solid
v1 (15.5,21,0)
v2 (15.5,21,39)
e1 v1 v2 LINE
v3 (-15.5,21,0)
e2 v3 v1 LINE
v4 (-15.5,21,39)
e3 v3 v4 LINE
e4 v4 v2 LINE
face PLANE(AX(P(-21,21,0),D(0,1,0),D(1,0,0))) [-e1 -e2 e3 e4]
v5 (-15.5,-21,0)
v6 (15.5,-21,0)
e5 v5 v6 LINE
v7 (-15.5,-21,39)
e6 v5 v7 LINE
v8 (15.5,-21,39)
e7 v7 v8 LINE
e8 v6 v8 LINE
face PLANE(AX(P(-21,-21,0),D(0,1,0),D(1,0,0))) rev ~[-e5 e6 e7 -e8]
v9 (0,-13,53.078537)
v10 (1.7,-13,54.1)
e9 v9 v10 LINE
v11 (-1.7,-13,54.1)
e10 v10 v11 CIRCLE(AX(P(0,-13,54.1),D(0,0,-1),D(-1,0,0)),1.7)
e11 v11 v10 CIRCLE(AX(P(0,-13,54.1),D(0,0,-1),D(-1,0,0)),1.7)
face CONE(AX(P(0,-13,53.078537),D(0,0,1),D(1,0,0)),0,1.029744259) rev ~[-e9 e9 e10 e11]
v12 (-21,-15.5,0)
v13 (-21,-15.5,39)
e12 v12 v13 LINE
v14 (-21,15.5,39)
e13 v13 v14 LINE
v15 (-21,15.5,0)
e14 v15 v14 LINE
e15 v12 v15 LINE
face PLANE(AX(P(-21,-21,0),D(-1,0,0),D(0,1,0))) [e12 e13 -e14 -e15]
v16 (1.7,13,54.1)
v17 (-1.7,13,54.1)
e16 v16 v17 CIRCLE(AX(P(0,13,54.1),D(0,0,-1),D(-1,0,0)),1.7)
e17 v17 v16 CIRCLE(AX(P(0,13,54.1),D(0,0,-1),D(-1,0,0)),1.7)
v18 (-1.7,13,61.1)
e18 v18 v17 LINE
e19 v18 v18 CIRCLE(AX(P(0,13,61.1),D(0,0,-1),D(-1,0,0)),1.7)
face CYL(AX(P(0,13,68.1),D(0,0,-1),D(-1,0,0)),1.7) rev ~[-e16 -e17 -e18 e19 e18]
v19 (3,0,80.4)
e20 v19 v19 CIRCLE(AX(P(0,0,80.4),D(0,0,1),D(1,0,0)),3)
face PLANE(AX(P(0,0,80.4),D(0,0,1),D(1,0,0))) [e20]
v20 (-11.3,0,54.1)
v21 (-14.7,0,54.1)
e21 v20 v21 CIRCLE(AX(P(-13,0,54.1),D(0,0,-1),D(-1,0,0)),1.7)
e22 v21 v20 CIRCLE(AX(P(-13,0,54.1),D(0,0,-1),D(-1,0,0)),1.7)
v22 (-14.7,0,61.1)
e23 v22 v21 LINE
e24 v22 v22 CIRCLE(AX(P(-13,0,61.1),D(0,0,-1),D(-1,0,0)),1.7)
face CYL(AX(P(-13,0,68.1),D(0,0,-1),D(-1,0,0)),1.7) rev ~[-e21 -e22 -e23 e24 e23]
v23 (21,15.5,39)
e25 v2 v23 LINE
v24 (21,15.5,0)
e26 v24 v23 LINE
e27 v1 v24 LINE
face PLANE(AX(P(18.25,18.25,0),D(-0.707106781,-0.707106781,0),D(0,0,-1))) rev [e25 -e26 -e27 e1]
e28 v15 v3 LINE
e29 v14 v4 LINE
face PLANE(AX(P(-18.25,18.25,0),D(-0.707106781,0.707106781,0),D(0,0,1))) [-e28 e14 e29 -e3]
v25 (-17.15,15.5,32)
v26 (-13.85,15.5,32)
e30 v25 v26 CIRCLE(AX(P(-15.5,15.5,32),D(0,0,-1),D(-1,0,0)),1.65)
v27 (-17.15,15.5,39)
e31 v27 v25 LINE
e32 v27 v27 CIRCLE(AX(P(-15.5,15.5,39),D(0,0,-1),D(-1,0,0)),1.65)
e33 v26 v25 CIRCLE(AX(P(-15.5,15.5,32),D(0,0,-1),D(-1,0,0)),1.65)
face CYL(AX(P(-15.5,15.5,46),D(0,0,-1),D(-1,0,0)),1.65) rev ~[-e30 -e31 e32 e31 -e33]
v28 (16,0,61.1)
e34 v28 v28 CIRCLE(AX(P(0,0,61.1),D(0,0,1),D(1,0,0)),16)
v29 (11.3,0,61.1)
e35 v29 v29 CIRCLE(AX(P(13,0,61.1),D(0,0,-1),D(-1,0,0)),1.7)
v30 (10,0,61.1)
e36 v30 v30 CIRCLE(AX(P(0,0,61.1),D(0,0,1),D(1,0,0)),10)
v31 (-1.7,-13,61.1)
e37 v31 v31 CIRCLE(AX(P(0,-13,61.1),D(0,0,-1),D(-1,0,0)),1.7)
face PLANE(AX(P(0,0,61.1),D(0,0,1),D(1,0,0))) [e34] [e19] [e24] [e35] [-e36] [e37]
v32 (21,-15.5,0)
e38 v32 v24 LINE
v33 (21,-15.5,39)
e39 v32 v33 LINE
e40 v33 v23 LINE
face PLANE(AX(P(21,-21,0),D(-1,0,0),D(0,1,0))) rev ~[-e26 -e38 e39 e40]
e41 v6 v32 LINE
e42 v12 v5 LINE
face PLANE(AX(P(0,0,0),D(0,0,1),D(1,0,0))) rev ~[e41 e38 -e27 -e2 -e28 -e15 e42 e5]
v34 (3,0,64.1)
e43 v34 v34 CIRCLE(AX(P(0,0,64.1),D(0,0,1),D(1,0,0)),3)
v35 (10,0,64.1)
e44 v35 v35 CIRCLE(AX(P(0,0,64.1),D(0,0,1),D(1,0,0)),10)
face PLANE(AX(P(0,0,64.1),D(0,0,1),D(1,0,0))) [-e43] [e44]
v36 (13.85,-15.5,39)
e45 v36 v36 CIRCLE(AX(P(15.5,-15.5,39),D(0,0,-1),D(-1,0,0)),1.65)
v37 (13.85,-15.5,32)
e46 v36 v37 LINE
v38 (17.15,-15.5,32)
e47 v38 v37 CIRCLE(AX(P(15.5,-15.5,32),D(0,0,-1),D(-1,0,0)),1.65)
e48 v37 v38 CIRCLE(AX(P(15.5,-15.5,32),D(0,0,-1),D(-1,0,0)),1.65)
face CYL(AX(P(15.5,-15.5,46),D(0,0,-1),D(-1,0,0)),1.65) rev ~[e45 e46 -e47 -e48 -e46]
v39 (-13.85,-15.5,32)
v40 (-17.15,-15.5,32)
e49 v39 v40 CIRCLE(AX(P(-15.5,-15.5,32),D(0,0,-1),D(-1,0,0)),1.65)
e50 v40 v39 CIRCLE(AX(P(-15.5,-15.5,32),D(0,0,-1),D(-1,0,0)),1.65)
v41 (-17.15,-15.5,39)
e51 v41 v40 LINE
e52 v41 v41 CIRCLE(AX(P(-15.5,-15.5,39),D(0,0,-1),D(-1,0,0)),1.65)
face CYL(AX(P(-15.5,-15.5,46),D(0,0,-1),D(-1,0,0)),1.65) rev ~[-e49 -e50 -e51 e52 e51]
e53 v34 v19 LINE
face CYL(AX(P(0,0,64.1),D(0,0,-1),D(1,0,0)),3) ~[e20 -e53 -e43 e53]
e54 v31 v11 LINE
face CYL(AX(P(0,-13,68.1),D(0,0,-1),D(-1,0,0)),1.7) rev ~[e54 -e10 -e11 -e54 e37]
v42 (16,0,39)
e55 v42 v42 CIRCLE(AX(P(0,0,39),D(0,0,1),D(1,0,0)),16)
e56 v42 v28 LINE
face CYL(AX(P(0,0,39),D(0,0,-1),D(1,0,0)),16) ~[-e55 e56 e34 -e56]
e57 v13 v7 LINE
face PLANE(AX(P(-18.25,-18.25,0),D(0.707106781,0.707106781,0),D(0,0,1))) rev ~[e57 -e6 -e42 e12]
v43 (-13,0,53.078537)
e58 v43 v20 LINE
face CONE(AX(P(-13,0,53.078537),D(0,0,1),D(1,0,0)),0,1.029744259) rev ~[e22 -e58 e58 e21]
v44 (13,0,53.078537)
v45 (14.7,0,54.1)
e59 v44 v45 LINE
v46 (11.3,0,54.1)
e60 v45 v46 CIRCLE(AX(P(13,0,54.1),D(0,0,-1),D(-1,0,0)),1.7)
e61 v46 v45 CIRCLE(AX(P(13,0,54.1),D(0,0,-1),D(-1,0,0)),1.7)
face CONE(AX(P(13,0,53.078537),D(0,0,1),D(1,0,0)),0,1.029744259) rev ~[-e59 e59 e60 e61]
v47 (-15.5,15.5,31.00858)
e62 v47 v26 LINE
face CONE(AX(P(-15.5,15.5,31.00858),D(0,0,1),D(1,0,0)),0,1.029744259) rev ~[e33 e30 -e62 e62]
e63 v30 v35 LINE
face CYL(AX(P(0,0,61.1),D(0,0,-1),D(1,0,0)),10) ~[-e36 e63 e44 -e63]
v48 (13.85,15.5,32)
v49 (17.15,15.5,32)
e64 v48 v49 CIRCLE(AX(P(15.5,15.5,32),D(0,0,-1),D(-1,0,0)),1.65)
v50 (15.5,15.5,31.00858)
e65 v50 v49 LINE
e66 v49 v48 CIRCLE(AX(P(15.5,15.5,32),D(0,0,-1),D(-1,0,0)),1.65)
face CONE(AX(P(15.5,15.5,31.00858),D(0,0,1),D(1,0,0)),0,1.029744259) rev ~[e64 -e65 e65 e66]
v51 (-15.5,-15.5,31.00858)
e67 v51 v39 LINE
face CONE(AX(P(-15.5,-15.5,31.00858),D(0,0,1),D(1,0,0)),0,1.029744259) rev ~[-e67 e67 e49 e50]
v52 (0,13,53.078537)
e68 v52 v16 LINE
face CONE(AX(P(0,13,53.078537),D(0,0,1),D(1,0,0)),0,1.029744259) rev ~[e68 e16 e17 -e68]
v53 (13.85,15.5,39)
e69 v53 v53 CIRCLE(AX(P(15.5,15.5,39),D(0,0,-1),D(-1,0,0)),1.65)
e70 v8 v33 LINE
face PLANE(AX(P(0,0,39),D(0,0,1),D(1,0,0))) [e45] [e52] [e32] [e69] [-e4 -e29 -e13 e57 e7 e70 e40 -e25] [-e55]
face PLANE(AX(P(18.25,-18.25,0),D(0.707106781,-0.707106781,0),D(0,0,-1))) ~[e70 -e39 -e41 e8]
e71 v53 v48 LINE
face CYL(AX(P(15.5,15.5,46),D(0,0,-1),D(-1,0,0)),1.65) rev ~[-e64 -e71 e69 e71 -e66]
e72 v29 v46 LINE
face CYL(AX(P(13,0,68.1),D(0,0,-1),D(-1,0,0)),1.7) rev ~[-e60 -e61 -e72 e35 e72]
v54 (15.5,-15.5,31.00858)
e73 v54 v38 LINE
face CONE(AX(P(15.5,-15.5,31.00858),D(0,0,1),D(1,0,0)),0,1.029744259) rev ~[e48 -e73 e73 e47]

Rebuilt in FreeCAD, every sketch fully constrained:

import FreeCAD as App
import Part
import Sketcher


def edges_at(feature, points):
    """Names of the edges that pass closest to the given points."""
    edges = feature.Shape.Edges
    near = lambda p: min(range(len(edges)), key=lambda i: edges[i].distToShape(Part.Vertex(*p))[0])
    return sorted({f"Edge{near(p) + 1}" for p in points})

doc = App.newDocument("Part")
body = doc.addObject("PartDesign::Body", "Body")

# Sketch on XY plane
sketch1 = doc.addObject("Sketcher::SketchObject", "Sketch")
body.addObject(sketch1)
sketch1.AttachmentSupport = (doc.XY_Plane, [""])
sketch1.MapMode = "FlatFace"
sketch1.addGeometry(Part.LineSegment(App.Vector(-21, 21, 0), App.Vector(-21, -21, 0)), False)
sketch1.addGeometry(Part.LineSegment(App.Vector(-21, -21, 0), App.Vector(21, -21, 0)), False)
sketch1.addGeometry(Part.LineSegment(App.Vector(21, -21, 0), App.Vector(21, 21, 0)), False)
sketch1.addGeometry(Part.LineSegment(App.Vector(21, 21, 0), App.Vector(-21, 21, 0)), False)
sketch1.addConstraint(Sketcher.Constraint("Coincident", 0, 2, 1, 1))
sketch1.addConstraint(Sketcher.Constraint("Coincident", 1, 2, 2, 1))
sketch1.addConstraint(Sketcher.Constraint("Coincident", 2, 2, 3, 1))
sketch1.addConstraint(Sketcher.Constraint("Coincident", 3, 2, 0, 1))
sketch1.addConstraint(Sketcher.Constraint("Vertical", 0))
sketch1.addConstraint(Sketcher.Constraint("Horizontal", 1))
sketch1.addConstraint(Sketcher.Constraint("Vertical", 2))
sketch1.addConstraint(Sketcher.Constraint("Horizontal", 3))
sketch1.addConstraint(Sketcher.Constraint("Symmetric", 0, 2, 2, 2, -1, 1))
sketch1.addConstraint(Sketcher.Constraint("Equal", 3, 0))
sketch1.addConstraint(Sketcher.Constraint("DistanceX", 1, 1, 1, 2, 42.0))
pad1 = doc.addObject("PartDesign::Pad", "Pad")
body.addObject(pad1)
pad1.Profile = sketch1
pad1.Length = 39

# Sketch on XY plane
sketch2 = doc.addObject("Sketcher::SketchObject", "Sketch001")
body.addObject(sketch2)
sketch2.AttachmentSupport = (doc.XY_Plane, [""])
sketch2.MapMode = "FlatFace"
sketch2.AttachmentOffset = App.Placement(App.Vector(0, 0, 39), App.Rotation())
sketch2.addGeometry(Part.Circle(App.Vector(0, 0, 0), App.Vector(0, 0, 1), 16), False)
sketch2.addConstraint(Sketcher.Constraint("Coincident", 0, 3, -1, 1))
sketch2.addConstraint(Sketcher.Constraint("Diameter", 0, 32.0))
pad2 = doc.addObject("PartDesign::Pad", "Pad001")
body.addObject(pad2)
pad2.Profile = sketch2
pad2.Length = 22.1

# Sketch on XY plane
sketch3 = doc.addObject("Sketcher::SketchObject", "Sketch002")
body.addObject(sketch3)
sketch3.AttachmentSupport = (doc.XY_Plane, [""])
sketch3.MapMode = "FlatFace"
sketch3.AttachmentOffset = App.Placement(App.Vector(0, 0, 61.1), App.Rotation())
sketch3.addGeometry(Part.Circle(App.Vector(0, 0, 0), App.Vector(0, 0, 1), 10), False)
sketch3.addConstraint(Sketcher.Constraint("Coincident", 0, 3, -1, 1))
sketch3.addConstraint(Sketcher.Constraint("Diameter", 0, 20.0))
pad3 = doc.addObject("PartDesign::Pad", "Pad002")
body.addObject(pad3)
pad3.Profile = sketch3
pad3.Length = 3

# Sketch on XY plane
sketch4 = doc.addObject("Sketcher::SketchObject", "Sketch003")
body.addObject(sketch4)
sketch4.AttachmentSupport = (doc.XY_Plane, [""])
sketch4.MapMode = "FlatFace"
sketch4.AttachmentOffset = App.Placement(App.Vector(0, 0, 64.1), App.Rotation())
sketch4.addGeometry(Part.Circle(App.Vector(0, 0, 0), App.Vector(0, 0, 1), 3), False)
sketch4.addConstraint(Sketcher.Constraint("Coincident", 0, 3, -1, 1))
sketch4.addConstraint(Sketcher.Constraint("Diameter", 0, 6.0))
pad4 = doc.addObject("PartDesign::Pad", "Pad003")
body.addObject(pad4)
pad4.Profile = sketch4
pad4.Length = 16.3
doc.recompute()

chamfer = doc.addObject("PartDesign::Chamfer", "Chamfer")
body.addObject(chamfer)
chamfer.Base = (pad4, edges_at(pad4, [
    (-21, 21, 19.5),
    (21, 21, 19.5),
    (21, -21, 19.5),
    (-21, -21, 19.5),
]))
chamfer.Size = 5.5

# Sketch on XY plane
sketch5 = doc.addObject("Sketcher::SketchObject", "Sketch004")
body.addObject(sketch5)
sketch5.AttachmentSupport = (doc.XY_Plane, [""])
sketch5.MapMode = "FlatFace"
sketch5.AttachmentOffset = App.Placement(App.Vector(0, 0, 39), App.Rotation())
sketch5.addGeometry(Part.Circle(App.Vector(-15.5, 15.5, 0), App.Vector(0, 0, 1), 1.65), False)
sketch5.addGeometry(Part.Circle(App.Vector(15.5, 15.5, 0), App.Vector(0, 0, 1), 1.65), False)
sketch5.addGeometry(Part.Circle(App.Vector(15.5, -15.5, 0), App.Vector(0, 0, 1), 1.65), False)
sketch5.addGeometry(Part.Circle(App.Vector(-15.5, -15.5, 0), App.Vector(0, 0, 1), 1.65), False)
sketch5.addConstraint(Sketcher.Constraint("Equal", 0, 1))
sketch5.addConstraint(Sketcher.Constraint("Equal", 1, 2))
sketch5.addConstraint(Sketcher.Constraint("Equal", 2, 3))
sketch5.addConstraint(Sketcher.Constraint("Symmetric", 0, 3, 2, 3, -1, 1))
sketch5.addConstraint(Sketcher.Constraint("Symmetric", 1, 3, 3, 3, -1, 1))
sketch5.addConstraint(Sketcher.Constraint("Symmetric", 0, 3, 1, 3, -2))
sketch5.addConstraint(Sketcher.Constraint("Diameter", 0, 3.3))
sketch5.addConstraint(Sketcher.Constraint("DistanceX", 0, 3, 1, 3, 31.0))
sketch5.addConstraint(Sketcher.Constraint("DistanceY", 2, 3, 1, 3, 31.0))
doc.recompute()
hole = doc.addObject("PartDesign::Hole", "Hole")
body.addObject(hole)
hole.Profile = sketch5
hole.ThreadType = "None"
hole.Diameter = 3.3
hole.DepthType = "Dimension"
hole.Depth = 7
hole.DrillPoint = "Angled"
hole.DrillPointAngle = 118

# Sketch on XY plane
sketch6 = doc.addObject("Sketcher::SketchObject", "Sketch005")
body.addObject(sketch6)
sketch6.AttachmentSupport = (doc.XY_Plane, [""])
sketch6.MapMode = "FlatFace"
sketch6.AttachmentOffset = App.Placement(App.Vector(0, 0, 61.1), App.Rotation())
sketch6.addGeometry(Part.Circle(App.Vector(0, 13, 0), App.Vector(0, 0, 1), 1.7), False)
sketch6.addGeometry(Part.Circle(App.Vector(-13, 0, 0), App.Vector(0, 0, 1), 1.7), False)
sketch6.addGeometry(Part.Circle(App.Vector(0, -13, 0), App.Vector(0, 0, 1), 1.7), False)
sketch6.addGeometry(Part.Circle(App.Vector(13, 0, 0), App.Vector(0, 0, 1), 1.7), False)
sketch6.addConstraint(Sketcher.Constraint("Equal", 0, 1))
sketch6.addConstraint(Sketcher.Constraint("Equal", 1, 2))
sketch6.addConstraint(Sketcher.Constraint("Equal", 2, 3))
sketch6.addConstraint(Sketcher.Constraint("Symmetric", 0, 3, 2, 3, -1, 1))
sketch6.addConstraint(Sketcher.Constraint("Symmetric", 1, 3, 3, 3, -1, 1))
sketch6.addConstraint(Sketcher.Constraint("PointOnObject", 0, 3, -2))
sketch6.addConstraint(Sketcher.Constraint("PointOnObject", 1, 3, -1))
sketch6.addConstraint(Sketcher.Constraint("Diameter", 0, 3.4))
sketch6.addConstraint(Sketcher.Constraint("DistanceY", -1, 1, 0, 3, 13.0))
sketch6.addConstraint(Sketcher.Constraint("DistanceX", 1, 3, -1, 1, 13.0))
doc.recompute()
hole2 = doc.addObject("PartDesign::Hole", "Hole001")
body.addObject(hole2)
hole2.Profile = sketch6
hole2.ThreadType = "None"
hole2.Diameter = 3.4
hole2.DepthType = "Dimension"
hole2.Depth = 7
hole2.DrillPoint = "Angled"
hole2.DrillPointAngle = 118

doc.recompute()
